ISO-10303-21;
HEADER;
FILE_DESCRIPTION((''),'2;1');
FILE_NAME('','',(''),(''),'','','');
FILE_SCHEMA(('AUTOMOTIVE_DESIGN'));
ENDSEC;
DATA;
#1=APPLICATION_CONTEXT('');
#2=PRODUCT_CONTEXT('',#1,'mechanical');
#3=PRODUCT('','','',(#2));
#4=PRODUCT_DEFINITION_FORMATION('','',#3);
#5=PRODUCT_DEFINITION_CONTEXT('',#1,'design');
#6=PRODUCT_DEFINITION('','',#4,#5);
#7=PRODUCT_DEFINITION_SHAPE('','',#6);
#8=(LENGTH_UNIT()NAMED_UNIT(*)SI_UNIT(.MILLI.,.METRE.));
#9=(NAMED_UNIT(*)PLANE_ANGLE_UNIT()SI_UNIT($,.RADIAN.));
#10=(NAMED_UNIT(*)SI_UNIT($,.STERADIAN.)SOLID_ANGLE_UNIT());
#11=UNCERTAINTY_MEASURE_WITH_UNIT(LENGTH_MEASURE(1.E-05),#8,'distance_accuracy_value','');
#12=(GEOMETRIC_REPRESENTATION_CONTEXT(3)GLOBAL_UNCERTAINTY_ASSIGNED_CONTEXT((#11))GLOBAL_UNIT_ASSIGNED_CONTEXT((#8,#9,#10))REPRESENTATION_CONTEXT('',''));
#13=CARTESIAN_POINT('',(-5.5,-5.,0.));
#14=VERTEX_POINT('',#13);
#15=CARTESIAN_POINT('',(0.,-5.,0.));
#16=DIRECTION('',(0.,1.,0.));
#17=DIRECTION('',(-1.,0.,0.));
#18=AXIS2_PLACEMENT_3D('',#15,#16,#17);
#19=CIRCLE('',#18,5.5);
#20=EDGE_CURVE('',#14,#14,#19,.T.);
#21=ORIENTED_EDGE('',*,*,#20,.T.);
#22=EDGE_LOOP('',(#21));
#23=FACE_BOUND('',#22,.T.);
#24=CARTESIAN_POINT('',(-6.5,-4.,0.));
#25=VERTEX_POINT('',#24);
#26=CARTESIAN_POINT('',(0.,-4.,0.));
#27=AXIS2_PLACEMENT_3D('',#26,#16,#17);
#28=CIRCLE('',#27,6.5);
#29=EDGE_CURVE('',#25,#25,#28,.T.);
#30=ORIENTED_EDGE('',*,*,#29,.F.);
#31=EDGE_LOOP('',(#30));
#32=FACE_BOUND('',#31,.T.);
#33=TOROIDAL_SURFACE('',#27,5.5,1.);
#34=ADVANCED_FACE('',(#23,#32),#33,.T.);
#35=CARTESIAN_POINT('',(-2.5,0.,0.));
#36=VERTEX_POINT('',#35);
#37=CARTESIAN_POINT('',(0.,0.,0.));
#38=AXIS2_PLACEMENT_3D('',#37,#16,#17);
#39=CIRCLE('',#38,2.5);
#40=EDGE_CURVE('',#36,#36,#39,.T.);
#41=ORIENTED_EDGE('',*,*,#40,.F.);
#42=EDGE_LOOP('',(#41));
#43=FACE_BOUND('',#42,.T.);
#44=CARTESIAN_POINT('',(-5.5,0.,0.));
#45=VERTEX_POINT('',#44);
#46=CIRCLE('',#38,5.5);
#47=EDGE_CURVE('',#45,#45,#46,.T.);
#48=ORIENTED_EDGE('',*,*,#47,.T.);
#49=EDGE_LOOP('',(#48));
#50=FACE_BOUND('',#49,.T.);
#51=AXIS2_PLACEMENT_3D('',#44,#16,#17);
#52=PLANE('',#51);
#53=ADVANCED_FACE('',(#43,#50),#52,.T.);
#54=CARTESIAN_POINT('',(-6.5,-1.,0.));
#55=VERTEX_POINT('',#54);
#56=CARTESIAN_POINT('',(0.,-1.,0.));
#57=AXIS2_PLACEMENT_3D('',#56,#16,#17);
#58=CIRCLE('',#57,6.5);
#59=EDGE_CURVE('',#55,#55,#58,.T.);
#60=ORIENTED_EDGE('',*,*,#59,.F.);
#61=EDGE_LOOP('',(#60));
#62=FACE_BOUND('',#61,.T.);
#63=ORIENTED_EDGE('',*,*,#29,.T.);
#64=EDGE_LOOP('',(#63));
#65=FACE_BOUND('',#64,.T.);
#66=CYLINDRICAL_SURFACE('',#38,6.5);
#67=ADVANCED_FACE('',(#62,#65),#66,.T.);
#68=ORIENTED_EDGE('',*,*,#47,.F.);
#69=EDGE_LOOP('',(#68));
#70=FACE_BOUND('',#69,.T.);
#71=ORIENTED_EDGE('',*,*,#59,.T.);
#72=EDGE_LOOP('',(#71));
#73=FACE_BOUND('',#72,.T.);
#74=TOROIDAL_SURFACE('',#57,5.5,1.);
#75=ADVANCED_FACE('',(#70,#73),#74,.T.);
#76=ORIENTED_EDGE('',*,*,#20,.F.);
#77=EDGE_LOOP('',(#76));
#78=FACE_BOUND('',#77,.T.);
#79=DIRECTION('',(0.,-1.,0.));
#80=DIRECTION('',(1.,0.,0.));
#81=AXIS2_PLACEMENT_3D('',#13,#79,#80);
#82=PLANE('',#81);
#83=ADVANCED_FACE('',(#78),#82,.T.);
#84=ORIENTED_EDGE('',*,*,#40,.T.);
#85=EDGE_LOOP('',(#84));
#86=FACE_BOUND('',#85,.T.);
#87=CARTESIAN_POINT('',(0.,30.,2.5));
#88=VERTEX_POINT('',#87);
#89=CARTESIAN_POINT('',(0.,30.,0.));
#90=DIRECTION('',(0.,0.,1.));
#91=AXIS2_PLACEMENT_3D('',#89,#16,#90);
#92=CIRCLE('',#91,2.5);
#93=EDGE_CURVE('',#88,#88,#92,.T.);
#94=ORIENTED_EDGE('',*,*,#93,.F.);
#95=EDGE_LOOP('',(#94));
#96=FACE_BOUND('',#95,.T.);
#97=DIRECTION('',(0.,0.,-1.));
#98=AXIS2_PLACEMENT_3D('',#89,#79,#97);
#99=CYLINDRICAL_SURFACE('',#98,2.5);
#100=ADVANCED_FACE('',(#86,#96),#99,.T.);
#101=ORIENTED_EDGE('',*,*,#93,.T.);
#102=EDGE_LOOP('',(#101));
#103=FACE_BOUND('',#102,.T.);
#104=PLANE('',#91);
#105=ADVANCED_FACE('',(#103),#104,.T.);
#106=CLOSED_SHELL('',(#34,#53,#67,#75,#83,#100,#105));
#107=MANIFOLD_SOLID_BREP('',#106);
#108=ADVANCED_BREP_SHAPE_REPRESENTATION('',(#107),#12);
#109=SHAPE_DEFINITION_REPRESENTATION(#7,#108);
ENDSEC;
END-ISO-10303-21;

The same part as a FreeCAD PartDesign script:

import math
import FreeCAD as App
import Part
import Sketcher
from FreeCAD import Vector
Q = App.Units.Quantity

doc = App.newDocument("Part")
body = doc.addObject("PartDesign::Body", "Body")

# Sketch on XZ plane
sketch1 = body.newObject("Sketcher::SketchObject", "Sketch")
sketch1.AttachmentSupport = (doc.getObject("XZ_Plane"), [""])
sketch1.MapMode = "FlatFace"
sketch1.addGeometry(Part.Circle(Vector(0, 0, 0), Vector(0, 0, 1), 2.5), False)
sketch1.addConstraint([
    Sketcher.Constraint("Coincident", 0, 3, -1, 1),
    Sketcher.Constraint("Diameter", 0, Q("5 mm")),
])
pad1 = body.newObject("PartDesign::Pad", "Pad")
pad1.Profile = sketch1
pad1.Length = 30
pad1.Reversed = True

# Sketch on XY plane
sketch2 = body.newObject("Sketcher::SketchObject", "Sketch001")
sketch2.AttachmentSupport = (doc.getObject("XY_Plane"), [""])
sketch2.MapMode = "FlatFace"
sketch2.addGeometry([
    Part.LineSegment(Vector(0, -5, 0), Vector(0, 0, 0)),  # 0
    Part.LineSegment(Vector(0, 0, 0), Vector(-5.5, 0, 0)),  # 1
    Part.ArcOfCircle(Part.Circle(Vector(-5.5, -1, 0), Vector(0, 0, 1), 1), math.radians(90), math.radians(180)),  # 2
    Part.LineSegment(Vector(-6.5, -1, 0), Vector(-6.5, -4, 0)),  # 3
    Part.ArcOfCircle(Part.Circle(Vector(-5.5, -4, 0), Vector(0, 0, 1), 1), math.radians(-180), math.radians(-90)),  # 4
    Part.LineSegment(Vector(-5.5, -5, 0), Vector(0, -5, 0)),  # 5
], False)
sketch2.addConstraint([
    Sketcher.Constraint("Coincident", 0, 2, 1, 1),
    Sketcher.Constraint("Tangent", 1, 2, 2, 1),
    Sketcher.Constraint("Tangent", 2, 2, 3, 1),
    Sketcher.Constraint("Tangent", 3, 2, 4, 1),
    Sketcher.Constraint("Tangent", 4, 2, 5, 1),
    Sketcher.Constraint("Coincident", 5, 2, 0, 1),
    Sketcher.Constraint("Vertical", 0),
    Sketcher.Constraint("Horizontal", 1),
    Sketcher.Constraint("Vertical", 3),
    Sketcher.Constraint("Horizontal", 5),
    Sketcher.Constraint("Coincident", 0, 2, -1, 1),
    Sketcher.Constraint("Equal", 2, 4),
    Sketcher.Constraint("Radius", 2, Q("1 mm")),
    Sketcher.Constraint("DistanceY", 0, 1, 0, 2, Q("5 mm")),
    Sketcher.Constraint("DistanceX", 1, 2, 1, 1, Q("5.5 mm")),
])
revolution = body.newObject("PartDesign::Revolution", "Revolution")
revolution.Profile = sketch2
revolution.ReferenceAxis = (sketch2, ["V_Axis"])
revolution.Angle = 360

doc.recompute()
